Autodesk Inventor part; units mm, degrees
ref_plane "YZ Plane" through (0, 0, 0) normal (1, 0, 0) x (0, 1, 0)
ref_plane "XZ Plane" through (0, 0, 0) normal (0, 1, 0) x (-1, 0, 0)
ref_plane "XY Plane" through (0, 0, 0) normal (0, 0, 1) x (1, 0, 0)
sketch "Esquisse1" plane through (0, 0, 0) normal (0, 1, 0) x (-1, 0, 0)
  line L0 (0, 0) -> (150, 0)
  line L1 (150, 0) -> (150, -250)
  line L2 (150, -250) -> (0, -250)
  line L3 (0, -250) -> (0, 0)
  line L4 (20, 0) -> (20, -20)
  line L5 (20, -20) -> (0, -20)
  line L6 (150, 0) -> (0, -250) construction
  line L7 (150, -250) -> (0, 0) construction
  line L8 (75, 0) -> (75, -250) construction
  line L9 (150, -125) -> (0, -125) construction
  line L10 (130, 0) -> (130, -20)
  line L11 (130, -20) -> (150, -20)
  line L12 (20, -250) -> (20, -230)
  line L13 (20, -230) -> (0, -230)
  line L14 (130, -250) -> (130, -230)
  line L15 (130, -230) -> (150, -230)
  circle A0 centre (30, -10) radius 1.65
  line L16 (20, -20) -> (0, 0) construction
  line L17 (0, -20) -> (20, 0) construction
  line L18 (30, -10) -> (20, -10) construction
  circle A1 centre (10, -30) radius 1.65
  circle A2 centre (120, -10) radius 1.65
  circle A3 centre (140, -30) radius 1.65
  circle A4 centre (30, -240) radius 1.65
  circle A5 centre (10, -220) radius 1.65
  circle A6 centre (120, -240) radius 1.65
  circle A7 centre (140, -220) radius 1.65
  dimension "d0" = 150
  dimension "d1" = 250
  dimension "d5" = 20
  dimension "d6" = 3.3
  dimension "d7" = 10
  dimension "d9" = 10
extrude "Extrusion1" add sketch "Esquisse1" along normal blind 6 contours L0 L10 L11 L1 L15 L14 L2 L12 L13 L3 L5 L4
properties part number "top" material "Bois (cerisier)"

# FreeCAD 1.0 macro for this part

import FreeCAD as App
import Part
import Sketcher

doc = App.newDocument("Part")
body = doc.addObject("PartDesign::Body", "Body")

# Sketch on XZ plane
sketch1 = body.newObject("Sketcher::SketchObject", "Sketch")
sketch1.AttachmentSupport = (doc.getObject("XZ_Plane"), [""])
sketch1.MapMode = "FlatFace"
sketch1.addGeometry(Part.LineSegment(App.Vector(-130, 0, 0), App.Vector(-20, 0, 0)), False)
sketch1.addGeometry(Part.LineSegment(App.Vector(-20, 0, 0), App.Vector(-20, -20, 0)), False)
sketch1.addGeometry(Part.LineSegment(App.Vector(-20, -20, 0), App.Vector(0, -20, 0)), False)
sketch1.addGeometry(Part.LineSegment(App.Vector(0, -20, 0), App.Vector(0, -230, 0)), False)
sketch1.addGeometry(Part.LineSegment(App.Vector(0, -230, 0), App.Vector(-20, -230, 0)), False)
sketch1.addGeometry(Part.LineSegment(App.Vector(-20, -230, 0), App.Vector(-20, -250, 0)), False)
sketch1.addGeometry(Part.LineSegment(App.Vector(-20, -250, 0), App.Vector(-130, -250, 0)), False)
sketch1.addGeometry(Part.LineSegment(App.Vector(-130, -250, 0), App.Vector(-130, -230, 0)), False)
sketch1.addGeometry(Part.LineSegment(App.Vector(-130, -230, 0), App.Vector(-150, -230, 0)), False)
sketch1.addGeometry(Part.LineSegment(App.Vector(-150, -230, 0), App.Vector(-150, -20, 0)), False)
sketch1.addGeometry(Part.LineSegment(App.Vector(-150, -20, 0), App.Vector(-130, -20, 0)), False)
sketch1.addGeometry(Part.LineSegment(App.Vector(-130, -20, 0), App.Vector(-130, 0, 0)), False)
sketch1.addGeometry(Part.Circle(App.Vector(-10, -220, 0), App.Vector(0, 0, 1), 1.6), False)
sketch1.addGeometry(Part.Circle(App.Vector(-30, -240, 0), App.Vector(0, 0, 1), 1.6), False)
sketch1.addGeometry(Part.Circle(App.Vector(-120, -240, 0), App.Vector(0, 0, 1), 1.6), False)
sketch1.addGeometry(Part.Circle(App.Vector(-140, -220, 0), App.Vector(0, 0, 1), 1.6), False)
sketch1.addGeometry(Part.Circle(App.Vector(-10, -30, 0), App.Vector(0, 0, 1), 1.6), False)
sketch1.addGeometry(Part.Circle(App.Vector(-30, -10, 0), App.Vector(0, 0, 1), 1.6), False)
sketch1.addGeometry(Part.Circle(App.Vector(-120, -10, 0), App.Vector(0, 0, 1), 1.6), False)
sketch1.addGeometry(Part.Circle(App.Vector(-140, -30, 0), App.Vector(0, 0, 1), 1.6), False)
sketch1.addConstraint(Sketcher.Constraint("Coincident", 0, 2, 1, 1))
sketch1.addConstraint(Sketcher.Constraint("Coincident", 1, 2, 2, 1))
sketch1.addConstraint(Sketcher.Constraint("Coincident", 2, 2, 3, 1))
sketch1.addConstraint(Sketcher.Constraint("Coincident", 3, 2, 4, 1))
sketch1.addConstraint(Sketcher.Constraint("Coincident", 4, 2, 5, 1))
sketch1.addConstraint(Sketcher.Constraint("Coincident", 5, 2, 6, 1))
sketch1.addConstraint(Sketcher.Constraint("Coincident", 6, 2, 7, 1))
sketch1.addConstraint(Sketcher.Constraint("Coincident", 7, 2, 8, 1))
sketch1.addConstraint(Sketcher.Constraint("Coincident", 8, 2, 9, 1))
sketch1.addConstraint(Sketcher.Constraint("Coincident", 9, 2, 10, 1))
sketch1.addConstraint(Sketcher.Constraint("Coincident", 10, 2, 11, 1))
sketch1.addConstraint(Sketcher.Constraint("Coincident", 11, 2, 0, 1))
sketch1.addConstraint(Sketcher.Constraint("Horizontal", 0))
sketch1.addConstraint(Sketcher.Constraint("Vertical", 1))
sketch1.addConstraint(Sketcher.Constraint("Horizontal", 2))
sketch1.addConstraint(Sketcher.Constraint("Vertical", 3))
sketch1.addConstraint(Sketcher.Constraint("Horizontal", 4))
sketch1.addConstraint(Sketcher.Constraint("Vertical", 5))
sketch1.addConstraint(Sketcher.Constraint("Horizontal", 6))
sketch1.addConstraint(Sketcher.Constraint("Vertical", 7))
sketch1.addConstraint(Sketcher.Constraint("Horizontal", 8))
sketch1.addConstraint(Sketcher.Constraint("Vertical", 9))
sketch1.addConstraint(Sketcher.Constraint("Horizontal", 10))
sketch1.addConstraint(Sketcher.Constraint("Vertical", 11))
sketch1.addConstraint(Sketcher.Constraint("Equal", 12, 13))
sketch1.addConstraint(Sketcher.Constraint("Equal", 13, 14))
sketch1.addConstraint(Sketcher.Constraint("Equal", 14, 15))
sketch1.addConstraint(Sketcher.Constraint("Equal", 15, 16))
sketch1.addConstraint(Sketcher.Constraint("Equal", 16, 17))
sketch1.addConstraint(Sketcher.Constraint("Equal", 17, 18))
sketch1.addConstraint(Sketcher.Constraint("Equal", 18, 19))
sketch1.addConstraint(Sketcher.Constraint("PointOnObject", 0, 2, -1))
sketch1.addConstraint(Sketcher.Constraint("PointOnObject", 2, 2, -2))
sketch1.addConstraint(Sketcher.Constraint("Horizontal", 13, 3, 14, 3))
sketch1.addConstraint(Sketcher.Constraint("Horizontal", 12, 3, 15, 3))
sketch1.addConstraint(Sketcher.Constraint("Horizontal", 17, 3, 18, 3))
sketch1.addConstraint(Sketcher.Constraint("Horizontal", 16, 3, 19, 3))
sketch1.addConstraint(Sketcher.Constraint("Horizontal", 4, 2, 7, 2))
sketch1.addConstraint(Sketcher.Constraint("Horizontal", 2, 2, 9, 2))
sketch1.addConstraint(Sketcher.Constraint("Vertical", 12, 3, 16, 3))
sketch1.addConstraint(Sketcher.Constraint("Vertical", 13, 3, 17, 3))
sketch1.addConstraint(Sketcher.Constraint("Vertical", 14, 3, 18, 3))
sketch1.addConstraint(Sketcher.Constraint("Vertical", 15, 3, 19, 3))
sketch1.addConstraint(Sketcher.Constraint("Vertical", 1, 2, 4, 2))
sketch1.addConstraint(Sketcher.Constraint("Vertical", 7, 2, 10, 2))
sketch1.addConstraint(Sketcher.Constraint("Equal", 4, 8))
sketch1.addConstraint(Sketcher.Constraint("Equal", 10, 1))
sketch1.addConstraint(Sketcher.Constraint("Equal", 1, 5))
sketch1.addConstraint(Sketcher.Constraint("Diameter", 12, 3.3))
sketch1.addConstraint(Sketcher.Constraint("DistanceX", 2, 1, 2, 2, 20.0))
sketch1.addConstraint(Sketcher.Constraint("DistanceX", 12, 3, -1, 1, 10.0))
sketch1.addConstraint(Sketcher.Constraint("DistanceY", 17, 3, -1, 1, 10.0))
sketch1.addConstraint(Sketcher.Constraint("DistanceY", 5, 2, -1, 1, 250.0))
sketch1.addConstraint(Sketcher.Constraint("DistanceX", 8, 2, -1, 1, 150.0))
sketch1.addConstraint(Sketcher.Constraint("DistanceX", 13, 3, 12, 3, 20.0))
sketch1.addConstraint(Sketcher.Constraint("DistanceY", 13, 3, 12, 3, 20.0))
sketch1.addConstraint(Sketcher.Constraint("DistanceX", 15, 3, 14, 3, 20.0))
sketch1.addConstraint(Sketcher.Constraint("DistanceY", 16, 3, 17, 3, 20.0))
sketch1.addConstraint(Sketcher.Constraint("DistanceY", 3, 2, 12, 3, 10.0))
sketch1.addConstraint(Sketcher.Constraint("DistanceX", 6, 2, 14, 3, 10.0))
pad1 = body.newObject("PartDesign::Pad", "Pad")
pad1.Profile = sketch1
pad1.Length = 6
pad1.Reversed = True

doc.recompute()
